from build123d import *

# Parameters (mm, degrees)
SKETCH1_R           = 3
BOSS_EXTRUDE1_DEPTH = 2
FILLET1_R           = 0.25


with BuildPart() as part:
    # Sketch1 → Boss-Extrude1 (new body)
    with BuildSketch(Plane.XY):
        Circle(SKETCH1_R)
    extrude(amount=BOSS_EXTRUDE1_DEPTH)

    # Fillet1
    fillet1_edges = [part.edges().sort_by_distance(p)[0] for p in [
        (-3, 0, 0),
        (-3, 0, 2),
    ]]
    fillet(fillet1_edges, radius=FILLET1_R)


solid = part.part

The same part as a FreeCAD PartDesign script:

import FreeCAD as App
import Part
import Sketcher

V = App.Vector


def edges_at(feature, points):
    """Names of the edges that pass closest to the given points."""
    edges = feature.Shape.Edges
    near = lambda p: min(range(len(edges)), key=lambda i: edges[i].distToShape(Part.Vertex(*p))[0])
    return sorted({f"Edge{near(p) + 1}" for p in points})

doc = App.newDocument("Part")
body = doc.addObject("PartDesign::Body", "Body")

# Sketch on XY plane
sketch1 = body.newObject("Sketcher::SketchObject", "Sketch")
sketch1.AttachmentSupport = (doc.getObject("XY_Plane"), [""])
sketch1.MapMode = "FlatFace"
sketch1.addGeometry(Part.Circle(V(0, 0, 0), V(0, 0, 1), 3), False)
sketch1.addConstraint(Sketcher.Constraint("Coincident", 0, 3, -1, 1))
sketch1.addConstraint(Sketcher.Constraint("Diameter", 0, 6.0))
pad1 = body.newObject("PartDesign::Pad", "Pad")
pad1.Profile = sketch1
pad1.Length = 2
doc.recompute()

fillet = body.newObject("PartDesign::Fillet", "Fillet")
fillet.Base = (pad1, edges_at(pad1, [(-3, 0, 0), (-3, 0, 2)]))
fillet.Radius = 0.25

doc.recompute()
